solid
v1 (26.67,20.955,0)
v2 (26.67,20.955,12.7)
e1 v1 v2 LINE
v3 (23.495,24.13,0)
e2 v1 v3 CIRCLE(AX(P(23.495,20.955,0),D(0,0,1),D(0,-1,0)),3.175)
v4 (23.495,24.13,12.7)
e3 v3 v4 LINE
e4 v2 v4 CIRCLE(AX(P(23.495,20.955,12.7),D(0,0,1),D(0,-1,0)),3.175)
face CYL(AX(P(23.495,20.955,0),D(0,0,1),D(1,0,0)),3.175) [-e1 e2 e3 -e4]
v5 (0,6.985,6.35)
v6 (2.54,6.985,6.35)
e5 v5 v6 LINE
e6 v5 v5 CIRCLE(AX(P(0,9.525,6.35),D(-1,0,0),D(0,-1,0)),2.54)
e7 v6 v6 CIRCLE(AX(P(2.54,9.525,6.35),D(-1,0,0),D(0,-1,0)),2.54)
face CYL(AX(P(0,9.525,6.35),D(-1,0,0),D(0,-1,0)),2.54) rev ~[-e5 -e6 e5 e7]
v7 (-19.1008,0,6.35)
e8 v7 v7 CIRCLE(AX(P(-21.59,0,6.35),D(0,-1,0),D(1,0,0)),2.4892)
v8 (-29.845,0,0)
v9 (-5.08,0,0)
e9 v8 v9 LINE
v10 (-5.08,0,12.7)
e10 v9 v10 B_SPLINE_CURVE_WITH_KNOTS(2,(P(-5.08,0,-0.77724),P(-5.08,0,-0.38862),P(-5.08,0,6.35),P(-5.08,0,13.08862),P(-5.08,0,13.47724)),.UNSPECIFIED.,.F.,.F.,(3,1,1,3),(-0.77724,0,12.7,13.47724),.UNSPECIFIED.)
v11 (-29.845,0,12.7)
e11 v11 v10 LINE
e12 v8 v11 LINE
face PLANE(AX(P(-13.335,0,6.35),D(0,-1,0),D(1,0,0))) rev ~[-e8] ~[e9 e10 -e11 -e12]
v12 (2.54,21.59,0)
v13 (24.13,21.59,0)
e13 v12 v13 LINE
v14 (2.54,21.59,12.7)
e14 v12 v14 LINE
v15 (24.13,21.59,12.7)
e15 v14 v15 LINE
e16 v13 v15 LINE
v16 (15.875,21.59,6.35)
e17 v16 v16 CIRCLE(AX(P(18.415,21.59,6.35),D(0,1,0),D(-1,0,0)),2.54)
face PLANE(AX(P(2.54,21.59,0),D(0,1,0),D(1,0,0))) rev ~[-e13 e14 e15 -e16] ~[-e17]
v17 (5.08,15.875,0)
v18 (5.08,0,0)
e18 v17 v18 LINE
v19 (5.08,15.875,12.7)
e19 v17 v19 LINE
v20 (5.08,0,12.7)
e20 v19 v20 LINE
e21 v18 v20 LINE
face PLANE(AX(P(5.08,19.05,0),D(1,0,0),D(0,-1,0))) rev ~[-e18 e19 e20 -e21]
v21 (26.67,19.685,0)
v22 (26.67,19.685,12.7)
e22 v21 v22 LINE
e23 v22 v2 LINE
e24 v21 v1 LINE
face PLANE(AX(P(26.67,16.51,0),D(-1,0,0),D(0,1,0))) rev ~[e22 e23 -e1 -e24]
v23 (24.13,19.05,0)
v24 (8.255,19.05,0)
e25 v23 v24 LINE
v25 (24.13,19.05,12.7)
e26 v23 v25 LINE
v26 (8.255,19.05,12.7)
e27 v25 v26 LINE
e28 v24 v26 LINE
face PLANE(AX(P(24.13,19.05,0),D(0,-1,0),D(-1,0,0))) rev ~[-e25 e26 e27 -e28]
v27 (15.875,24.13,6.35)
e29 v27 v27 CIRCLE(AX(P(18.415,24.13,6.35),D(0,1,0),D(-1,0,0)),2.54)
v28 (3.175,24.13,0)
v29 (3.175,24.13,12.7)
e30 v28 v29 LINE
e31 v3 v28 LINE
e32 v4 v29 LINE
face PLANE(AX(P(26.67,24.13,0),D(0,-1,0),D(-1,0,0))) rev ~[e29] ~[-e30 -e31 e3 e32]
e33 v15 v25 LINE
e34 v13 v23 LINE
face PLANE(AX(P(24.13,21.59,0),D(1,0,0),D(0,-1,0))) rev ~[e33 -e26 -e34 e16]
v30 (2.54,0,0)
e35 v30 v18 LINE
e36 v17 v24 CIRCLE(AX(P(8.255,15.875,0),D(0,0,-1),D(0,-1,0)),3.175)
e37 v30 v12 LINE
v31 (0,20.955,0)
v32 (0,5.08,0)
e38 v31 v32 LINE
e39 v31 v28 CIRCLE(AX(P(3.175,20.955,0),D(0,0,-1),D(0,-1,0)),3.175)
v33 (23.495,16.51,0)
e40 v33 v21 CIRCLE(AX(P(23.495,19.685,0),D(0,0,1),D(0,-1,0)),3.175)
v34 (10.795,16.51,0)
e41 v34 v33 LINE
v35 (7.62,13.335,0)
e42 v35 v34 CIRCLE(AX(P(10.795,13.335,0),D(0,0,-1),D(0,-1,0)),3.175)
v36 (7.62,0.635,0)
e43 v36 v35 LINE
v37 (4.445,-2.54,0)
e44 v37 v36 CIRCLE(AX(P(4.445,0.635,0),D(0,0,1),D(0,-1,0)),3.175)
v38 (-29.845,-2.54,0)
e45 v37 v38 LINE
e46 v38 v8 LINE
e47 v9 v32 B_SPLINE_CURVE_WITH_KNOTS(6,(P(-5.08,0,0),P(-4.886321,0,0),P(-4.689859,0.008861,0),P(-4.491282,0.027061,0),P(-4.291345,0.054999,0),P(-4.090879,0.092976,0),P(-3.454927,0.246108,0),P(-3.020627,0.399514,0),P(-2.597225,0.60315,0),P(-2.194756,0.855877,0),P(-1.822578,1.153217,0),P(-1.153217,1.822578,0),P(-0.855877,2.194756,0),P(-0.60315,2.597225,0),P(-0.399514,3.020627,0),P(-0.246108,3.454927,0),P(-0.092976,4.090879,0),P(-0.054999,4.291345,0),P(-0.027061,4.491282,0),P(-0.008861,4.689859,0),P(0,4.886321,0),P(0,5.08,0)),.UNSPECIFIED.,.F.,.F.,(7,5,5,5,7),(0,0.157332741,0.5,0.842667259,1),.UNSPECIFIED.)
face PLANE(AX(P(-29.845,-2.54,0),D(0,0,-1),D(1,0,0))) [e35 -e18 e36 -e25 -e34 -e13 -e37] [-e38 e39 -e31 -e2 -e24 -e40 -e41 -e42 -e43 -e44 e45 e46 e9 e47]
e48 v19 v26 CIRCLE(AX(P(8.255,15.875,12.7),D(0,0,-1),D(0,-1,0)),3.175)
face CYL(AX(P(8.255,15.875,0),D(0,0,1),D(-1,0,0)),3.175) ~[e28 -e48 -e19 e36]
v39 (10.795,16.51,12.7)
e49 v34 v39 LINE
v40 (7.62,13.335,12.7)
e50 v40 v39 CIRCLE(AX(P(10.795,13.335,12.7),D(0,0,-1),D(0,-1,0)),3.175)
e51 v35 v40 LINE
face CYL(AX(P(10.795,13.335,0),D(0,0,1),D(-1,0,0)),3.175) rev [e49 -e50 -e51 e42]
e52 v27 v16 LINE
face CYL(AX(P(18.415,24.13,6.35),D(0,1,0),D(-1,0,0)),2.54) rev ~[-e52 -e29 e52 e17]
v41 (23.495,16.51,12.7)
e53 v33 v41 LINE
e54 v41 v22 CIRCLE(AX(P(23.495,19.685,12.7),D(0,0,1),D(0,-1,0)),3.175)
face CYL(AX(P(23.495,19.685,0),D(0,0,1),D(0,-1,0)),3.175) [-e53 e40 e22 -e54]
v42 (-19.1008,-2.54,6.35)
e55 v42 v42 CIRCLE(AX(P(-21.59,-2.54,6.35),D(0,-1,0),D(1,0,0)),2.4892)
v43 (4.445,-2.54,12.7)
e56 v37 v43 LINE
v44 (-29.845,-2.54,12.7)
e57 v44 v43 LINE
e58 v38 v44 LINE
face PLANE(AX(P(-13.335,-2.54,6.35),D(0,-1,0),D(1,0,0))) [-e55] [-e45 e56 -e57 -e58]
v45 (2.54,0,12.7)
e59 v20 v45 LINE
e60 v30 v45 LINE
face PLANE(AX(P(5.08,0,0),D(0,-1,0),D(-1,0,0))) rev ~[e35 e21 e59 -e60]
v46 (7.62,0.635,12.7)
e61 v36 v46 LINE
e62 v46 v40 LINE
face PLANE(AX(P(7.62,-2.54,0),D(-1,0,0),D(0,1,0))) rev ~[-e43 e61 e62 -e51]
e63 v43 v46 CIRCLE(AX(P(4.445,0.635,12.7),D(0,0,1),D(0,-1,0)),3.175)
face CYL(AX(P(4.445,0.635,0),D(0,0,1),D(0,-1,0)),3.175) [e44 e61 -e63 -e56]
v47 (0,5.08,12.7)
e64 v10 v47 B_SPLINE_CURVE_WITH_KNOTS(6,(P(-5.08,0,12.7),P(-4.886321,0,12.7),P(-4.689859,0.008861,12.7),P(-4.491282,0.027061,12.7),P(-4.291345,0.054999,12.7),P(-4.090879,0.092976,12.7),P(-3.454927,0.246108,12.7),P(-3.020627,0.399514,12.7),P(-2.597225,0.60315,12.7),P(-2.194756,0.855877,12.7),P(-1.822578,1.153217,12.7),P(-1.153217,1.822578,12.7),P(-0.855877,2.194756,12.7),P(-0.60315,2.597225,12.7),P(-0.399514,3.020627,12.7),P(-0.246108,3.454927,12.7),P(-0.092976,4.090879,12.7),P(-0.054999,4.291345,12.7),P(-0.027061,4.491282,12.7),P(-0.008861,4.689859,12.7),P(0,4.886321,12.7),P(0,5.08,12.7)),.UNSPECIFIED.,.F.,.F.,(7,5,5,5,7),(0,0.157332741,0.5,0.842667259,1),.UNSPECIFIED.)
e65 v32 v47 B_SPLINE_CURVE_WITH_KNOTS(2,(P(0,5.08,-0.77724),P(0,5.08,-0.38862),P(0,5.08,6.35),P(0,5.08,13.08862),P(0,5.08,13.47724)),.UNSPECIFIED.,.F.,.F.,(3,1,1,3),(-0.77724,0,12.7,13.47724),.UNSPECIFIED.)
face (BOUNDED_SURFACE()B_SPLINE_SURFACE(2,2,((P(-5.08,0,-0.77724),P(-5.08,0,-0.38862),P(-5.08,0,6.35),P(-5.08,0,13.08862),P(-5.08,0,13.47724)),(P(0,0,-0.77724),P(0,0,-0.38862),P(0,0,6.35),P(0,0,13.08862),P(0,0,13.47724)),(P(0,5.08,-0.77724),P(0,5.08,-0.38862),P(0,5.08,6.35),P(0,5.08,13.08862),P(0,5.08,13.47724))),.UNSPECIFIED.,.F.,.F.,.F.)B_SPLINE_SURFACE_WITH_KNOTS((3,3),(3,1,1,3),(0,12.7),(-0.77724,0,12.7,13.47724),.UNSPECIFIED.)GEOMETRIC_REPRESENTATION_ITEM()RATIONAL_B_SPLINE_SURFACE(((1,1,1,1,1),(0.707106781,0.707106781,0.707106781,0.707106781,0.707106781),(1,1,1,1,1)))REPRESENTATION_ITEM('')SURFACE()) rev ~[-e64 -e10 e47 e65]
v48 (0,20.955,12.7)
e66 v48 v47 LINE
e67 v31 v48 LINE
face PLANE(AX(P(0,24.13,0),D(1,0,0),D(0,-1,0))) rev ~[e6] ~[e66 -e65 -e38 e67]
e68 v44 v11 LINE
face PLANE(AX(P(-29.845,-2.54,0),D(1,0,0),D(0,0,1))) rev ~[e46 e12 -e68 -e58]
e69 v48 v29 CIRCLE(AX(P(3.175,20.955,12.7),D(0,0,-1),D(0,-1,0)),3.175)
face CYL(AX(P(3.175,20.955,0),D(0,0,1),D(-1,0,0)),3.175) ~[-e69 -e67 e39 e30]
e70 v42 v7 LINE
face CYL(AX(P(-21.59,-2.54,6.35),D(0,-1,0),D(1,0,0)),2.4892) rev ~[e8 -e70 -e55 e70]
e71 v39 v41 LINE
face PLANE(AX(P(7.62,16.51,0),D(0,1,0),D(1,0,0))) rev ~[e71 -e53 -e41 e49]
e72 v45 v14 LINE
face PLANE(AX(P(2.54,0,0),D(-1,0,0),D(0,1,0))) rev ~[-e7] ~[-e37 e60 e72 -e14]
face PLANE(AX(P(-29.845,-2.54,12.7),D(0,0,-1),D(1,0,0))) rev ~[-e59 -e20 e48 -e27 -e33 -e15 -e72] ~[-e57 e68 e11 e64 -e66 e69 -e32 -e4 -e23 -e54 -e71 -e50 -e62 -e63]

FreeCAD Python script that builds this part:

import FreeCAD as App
import Part
import Sketcher
Q = App.Units.Quantity


def edges_at(feature, points):
    """Names of the edges that pass closest to the given points."""
    edges = feature.Shape.Edges
    near = lambda p: min(range(len(edges)), key=lambda i: edges[i].distToShape(Part.Vertex(*p))[0])
    return sorted({f"Edge{near(p) + 1}" for p in points})


def add_polygon(sketch, points):
    """Adds a closed chain of lines whose ends are joined by coincident constraints."""
    first, n = sketch.GeometryCount, len(points)
    for a, b in zip(points, points[1:] + points[:1]):
        sketch.addGeometry(Part.LineSegment(App.Vector(*a, 0), App.Vector(*b, 0)), False)
    for i in range(n):
        sketch.addConstraint(Sketcher.Constraint("Coincident", first + i, 2, first + (i + 1) % n, 1))

doc = App.newDocument("Part")
params = doc.addObject("Spreadsheet::Sheet", "Params")
for row, (alias, value) in enumerate([
    ("sketch1_width", "0.3 in"),
    ("sketch1_width2", "0.1 in"),
    ("sketch1_width3", "0.75 in"),
    ("pad1_length", "0.5 in"),
    ("fillet_radius", "0.125 in"),
    ("sketch2_width", "1.3 in"),
    ("sketch2_height", "0.5 in"),
    ("pad2_length", "0.1 in"),
    ("fillet2_radius", "0.2 in"),
    ("sketch3_diameter", "0.196 in"),
    ("sketch4_diameter", "0.2 in"),
    ("pocket2_length", "0.1 in"),
    ("sketch5_diameter", "0.2 in"),
    ("pocket3_length", "0.1 in"),
], start=1):
    params.set(f"A{row}", alias)
    params.set(f"B{row}", "=" + value)
    params.setAlias(f"B{row}", alias)

body = doc.addObject("PartDesign::Body", "Body")

# Sketch on XY plane
sketch1 = doc.addObject("Sketcher::SketchObject", "Sketch")
body.addObject(sketch1)
sketch1.AttachmentSupport = (doc.XY_Plane, [""])
sketch1.MapMode = "FlatFace"
add_polygon(sketch1, [(0, 24.1), (0, -2.5), (7.6, -2.5), (7.6, 16.5), (26.7, 16.5), (26.7, 24.1)])  # lines 0-5
add_polygon(sketch1, [(5.1, 19.1), (5.1, 0), (2.5, 0), (2.5, 21.6), (24.1, 21.6), (24.1, 19.1)])  # lines 6-11
sketch1.addConstraint([
    Sketcher.Constraint("Vertical", 0),
    Sketcher.Constraint("Horizontal", 1),
    Sketcher.Constraint("Vertical", 2),
    Sketcher.Constraint("Horizontal", 3),
    Sketcher.Constraint("Vertical", 4),
    Sketcher.Constraint("Horizontal", 5),
    Sketcher.Constraint("Vertical", 6),
    Sketcher.Constraint("Horizontal", 7),
    Sketcher.Constraint("Vertical", 8),
    Sketcher.Constraint("Horizontal", 9),
    Sketcher.Constraint("Vertical", 10),
    Sketcher.Constraint("Horizontal", 11),
    Sketcher.Constraint("PointOnObject", 0, 2, -2),
    Sketcher.Constraint("PointOnObject", 6, 2, -1),
    Sketcher.Constraint("Equal", 3, 11),
    Sketcher.Constraint("Equal", 5, 0),
    Sketcher.Constraint("Equal", 11, 2),
    Sketcher.Constraint("Equal", 2, 6),
    Sketcher.Constraint("Equal", 9, 8),
    Sketcher.Constraint("DistanceX", 1, 1, 1, 2, Q("0.3 in")),
    Sketcher.Constraint("DistanceX", 7, 2, 7, 1, Q("0.1 in")),
    Sketcher.Constraint("DistanceX", 3, 1, 3, 2, Q("0.75 in")),
    Sketcher.Constraint("DistanceY", 0, 2, -1, 1, Q("0.1 in")),
    Sketcher.Constraint("DistanceX", -1, 1, 6, 2, Q("0.2 in")),
])
sketch1.setExpression("Constraints[31]", "Params.sketch1_width")
sketch1.setExpression("Constraints[32]", "Params.sketch1_width2")
sketch1.setExpression("Constraints[33]", "Params.sketch1_width3")
pad1 = doc.addObject("PartDesign::Pad", "Pad")
body.addObject(pad1)
pad1.Profile = sketch1
pad1.setExpression("Length", "Params.pad1_length")
doc.recompute()

fillet = doc.addObject("PartDesign::Fillet", "Fillet")
body.addObject(fillet)
fillet.Base = (pad1, edges_at(pad1, [
    (26.67, 24.13, 6.35),
    (26.67, 16.51, 6.35),
    (5.08, 19.05, 6.35),
    (0, 24.13, 6.35),
    (7.62, -2.54, 6.35),
    (0, -2.54, 6.35),
    (7.62, 16.51, 6.35),
]))
fillet.setExpression("Radius", "Params.fillet_radius")

# Sketch on XZ plane
sketch2 = doc.addObject("Sketcher::SketchObject", "Sketch001")
body.addObject(sketch2)
sketch2.AttachmentSupport = (doc.XZ_Plane, [""])
sketch2.MapMode = "FlatFace"
sketch2.AttachmentOffset = App.Placement(App.Vector(0, 0, 0.1 * 25.4), App.Rotation())
add_polygon(sketch2, [(-30, 13), (-30, 0), (3, 0), (3, 13)])  # lines 0-3
sketch2.addConstraint([
    Sketcher.Constraint("Vertical", 0),
    Sketcher.Constraint("Horizontal", 1),
    Sketcher.Constraint("Vertical", 2),
    Sketcher.Constraint("Horizontal", 3),
    Sketcher.Constraint("PointOnObject", 0, 2, -1),
    Sketcher.Constraint("DistanceX", 1, 1, 1, 2, Q("1.3 in")),
    Sketcher.Constraint("DistanceY", 0, 2, 0, 1, Q("0.5 in")),
    Sketcher.Constraint("DistanceX", 0, 2, -1, 1, Q("1.175 in")),
])
sketch2.setExpression("Constraints[9]", "Params.sketch2_width")
sketch2.setExpression("Constraints[10]", "Params.sketch2_height")
pad2 = doc.addObject("PartDesign::Pad", "Pad001")
body.addObject(pad2)
pad2.Profile = sketch2
pad2.setExpression("Length", "Params.pad2_length")
pad2.Reversed = True
doc.recompute()

fillet2 = doc.addObject("PartDesign::Fillet", "Fillet001")
body.addObject(fillet2)
fillet2.Base = (pad2, edges_at(pad2, [(0.064, 0, 6.35)]))
fillet2.setExpression("Radius", "Params.fillet2_radius")

# Sketch on XZ plane
sketch3 = doc.addObject("Sketcher::SketchObject", "Sketch002")
body.addObject(sketch3)
sketch3.AttachmentSupport = (doc.XZ_Plane, [""])
sketch3.MapMode = "FlatFace"
sketch3.AttachmentOffset = App.Placement(App.Vector(0, 0, 0.1 * 25.4), App.Rotation())
sketch3.addGeometry(Part.Circle(App.Vector(-21.6, 6.3, 0), App.Vector(0, 0, 1), 2.5), False)
sketch3.addConstraint([
    Sketcher.Constraint("Diameter", 0, Q("0.196 in")),
    Sketcher.Constraint("DistanceX", 0, 3, -1, 1, Q("0.85 in")),
    Sketcher.Constraint("DistanceY", -1, 1, 0, 3, Q("0.25 in")),
])
sketch3.setExpression("Constraints[0]", "Params.sketch3_diameter")
pocket1 = doc.addObject("PartDesign::Pocket", "Pocket")
body.addObject(pocket1)
pocket1.Profile = sketch3
pocket1.Type = "ThroughAll"

# Sketch on XZ plane
sketch4 = doc.addObject("Sketcher::SketchObject", "Sketch003")
body.addObject(sketch4)
sketch4.AttachmentSupport = (doc.XZ_Plane, [""])
sketch4.MapMode = "FlatFace"
sketch4.AttachmentOffset = App.Placement(App.Vector(0, 0, -0.95 * 25.4), App.Rotation())
sketch4.addGeometry(Part.Circle(App.Vector(18.4, 6.3, 0), App.Vector(0, 0, 1), 2.5), False)
sketch4.addConstraint([
    Sketcher.Constraint("Diameter", 0, Q("0.2 in")),
    Sketcher.Constraint("DistanceY", -1, 1, 0, 3, Q("0.25 in")),
    Sketcher.Constraint("DistanceX", -1, 1, 0, 3, Q("0.725 in")),
])
sketch4.setExpression("Constraints[0]", "Params.sketch4_diameter")
pocket2 = doc.addObject("PartDesign::Pocket", "Pocket001")
body.addObject(pocket2)
pocket2.Profile = sketch4
pocket2.setExpression("Length", "Params.pocket2_length")
pocket2.Reversed = True

# Sketch on YZ plane
sketch5 = doc.addObject("Sketcher::SketchObject", "Sketch004")
body.addObject(sketch5)
sketch5.AttachmentSupport = (doc.YZ_Plane, [""])
sketch5.MapMode = "FlatFace"
sketch5.addGeometry(Part.Circle(App.Vector(9.5, 6.3, 0), App.Vector(0, 0, 1), 2.5), False)
sketch5.addConstraint([
    Sketcher.Constraint("Diameter", 0, Q("0.2 in")),
    Sketcher.Constraint("DistanceY", -1, 1, 0, 3, Q("0.25 in")),
    Sketcher.Constraint("DistanceX", -1, 1, 0, 3, Q("0.375 in")),
])
sketch5.setExpression("Constraints[0]", "Params.sketch5_diameter")
pocket3 = doc.addObject("PartDesign::Pocket", "Pocket002")
body.addObject(pocket3)
pocket3.Profile = sketch5
pocket3.setExpression("Length", "Params.pocket3_length")
pocket3.Reversed = True

doc.recompute()
